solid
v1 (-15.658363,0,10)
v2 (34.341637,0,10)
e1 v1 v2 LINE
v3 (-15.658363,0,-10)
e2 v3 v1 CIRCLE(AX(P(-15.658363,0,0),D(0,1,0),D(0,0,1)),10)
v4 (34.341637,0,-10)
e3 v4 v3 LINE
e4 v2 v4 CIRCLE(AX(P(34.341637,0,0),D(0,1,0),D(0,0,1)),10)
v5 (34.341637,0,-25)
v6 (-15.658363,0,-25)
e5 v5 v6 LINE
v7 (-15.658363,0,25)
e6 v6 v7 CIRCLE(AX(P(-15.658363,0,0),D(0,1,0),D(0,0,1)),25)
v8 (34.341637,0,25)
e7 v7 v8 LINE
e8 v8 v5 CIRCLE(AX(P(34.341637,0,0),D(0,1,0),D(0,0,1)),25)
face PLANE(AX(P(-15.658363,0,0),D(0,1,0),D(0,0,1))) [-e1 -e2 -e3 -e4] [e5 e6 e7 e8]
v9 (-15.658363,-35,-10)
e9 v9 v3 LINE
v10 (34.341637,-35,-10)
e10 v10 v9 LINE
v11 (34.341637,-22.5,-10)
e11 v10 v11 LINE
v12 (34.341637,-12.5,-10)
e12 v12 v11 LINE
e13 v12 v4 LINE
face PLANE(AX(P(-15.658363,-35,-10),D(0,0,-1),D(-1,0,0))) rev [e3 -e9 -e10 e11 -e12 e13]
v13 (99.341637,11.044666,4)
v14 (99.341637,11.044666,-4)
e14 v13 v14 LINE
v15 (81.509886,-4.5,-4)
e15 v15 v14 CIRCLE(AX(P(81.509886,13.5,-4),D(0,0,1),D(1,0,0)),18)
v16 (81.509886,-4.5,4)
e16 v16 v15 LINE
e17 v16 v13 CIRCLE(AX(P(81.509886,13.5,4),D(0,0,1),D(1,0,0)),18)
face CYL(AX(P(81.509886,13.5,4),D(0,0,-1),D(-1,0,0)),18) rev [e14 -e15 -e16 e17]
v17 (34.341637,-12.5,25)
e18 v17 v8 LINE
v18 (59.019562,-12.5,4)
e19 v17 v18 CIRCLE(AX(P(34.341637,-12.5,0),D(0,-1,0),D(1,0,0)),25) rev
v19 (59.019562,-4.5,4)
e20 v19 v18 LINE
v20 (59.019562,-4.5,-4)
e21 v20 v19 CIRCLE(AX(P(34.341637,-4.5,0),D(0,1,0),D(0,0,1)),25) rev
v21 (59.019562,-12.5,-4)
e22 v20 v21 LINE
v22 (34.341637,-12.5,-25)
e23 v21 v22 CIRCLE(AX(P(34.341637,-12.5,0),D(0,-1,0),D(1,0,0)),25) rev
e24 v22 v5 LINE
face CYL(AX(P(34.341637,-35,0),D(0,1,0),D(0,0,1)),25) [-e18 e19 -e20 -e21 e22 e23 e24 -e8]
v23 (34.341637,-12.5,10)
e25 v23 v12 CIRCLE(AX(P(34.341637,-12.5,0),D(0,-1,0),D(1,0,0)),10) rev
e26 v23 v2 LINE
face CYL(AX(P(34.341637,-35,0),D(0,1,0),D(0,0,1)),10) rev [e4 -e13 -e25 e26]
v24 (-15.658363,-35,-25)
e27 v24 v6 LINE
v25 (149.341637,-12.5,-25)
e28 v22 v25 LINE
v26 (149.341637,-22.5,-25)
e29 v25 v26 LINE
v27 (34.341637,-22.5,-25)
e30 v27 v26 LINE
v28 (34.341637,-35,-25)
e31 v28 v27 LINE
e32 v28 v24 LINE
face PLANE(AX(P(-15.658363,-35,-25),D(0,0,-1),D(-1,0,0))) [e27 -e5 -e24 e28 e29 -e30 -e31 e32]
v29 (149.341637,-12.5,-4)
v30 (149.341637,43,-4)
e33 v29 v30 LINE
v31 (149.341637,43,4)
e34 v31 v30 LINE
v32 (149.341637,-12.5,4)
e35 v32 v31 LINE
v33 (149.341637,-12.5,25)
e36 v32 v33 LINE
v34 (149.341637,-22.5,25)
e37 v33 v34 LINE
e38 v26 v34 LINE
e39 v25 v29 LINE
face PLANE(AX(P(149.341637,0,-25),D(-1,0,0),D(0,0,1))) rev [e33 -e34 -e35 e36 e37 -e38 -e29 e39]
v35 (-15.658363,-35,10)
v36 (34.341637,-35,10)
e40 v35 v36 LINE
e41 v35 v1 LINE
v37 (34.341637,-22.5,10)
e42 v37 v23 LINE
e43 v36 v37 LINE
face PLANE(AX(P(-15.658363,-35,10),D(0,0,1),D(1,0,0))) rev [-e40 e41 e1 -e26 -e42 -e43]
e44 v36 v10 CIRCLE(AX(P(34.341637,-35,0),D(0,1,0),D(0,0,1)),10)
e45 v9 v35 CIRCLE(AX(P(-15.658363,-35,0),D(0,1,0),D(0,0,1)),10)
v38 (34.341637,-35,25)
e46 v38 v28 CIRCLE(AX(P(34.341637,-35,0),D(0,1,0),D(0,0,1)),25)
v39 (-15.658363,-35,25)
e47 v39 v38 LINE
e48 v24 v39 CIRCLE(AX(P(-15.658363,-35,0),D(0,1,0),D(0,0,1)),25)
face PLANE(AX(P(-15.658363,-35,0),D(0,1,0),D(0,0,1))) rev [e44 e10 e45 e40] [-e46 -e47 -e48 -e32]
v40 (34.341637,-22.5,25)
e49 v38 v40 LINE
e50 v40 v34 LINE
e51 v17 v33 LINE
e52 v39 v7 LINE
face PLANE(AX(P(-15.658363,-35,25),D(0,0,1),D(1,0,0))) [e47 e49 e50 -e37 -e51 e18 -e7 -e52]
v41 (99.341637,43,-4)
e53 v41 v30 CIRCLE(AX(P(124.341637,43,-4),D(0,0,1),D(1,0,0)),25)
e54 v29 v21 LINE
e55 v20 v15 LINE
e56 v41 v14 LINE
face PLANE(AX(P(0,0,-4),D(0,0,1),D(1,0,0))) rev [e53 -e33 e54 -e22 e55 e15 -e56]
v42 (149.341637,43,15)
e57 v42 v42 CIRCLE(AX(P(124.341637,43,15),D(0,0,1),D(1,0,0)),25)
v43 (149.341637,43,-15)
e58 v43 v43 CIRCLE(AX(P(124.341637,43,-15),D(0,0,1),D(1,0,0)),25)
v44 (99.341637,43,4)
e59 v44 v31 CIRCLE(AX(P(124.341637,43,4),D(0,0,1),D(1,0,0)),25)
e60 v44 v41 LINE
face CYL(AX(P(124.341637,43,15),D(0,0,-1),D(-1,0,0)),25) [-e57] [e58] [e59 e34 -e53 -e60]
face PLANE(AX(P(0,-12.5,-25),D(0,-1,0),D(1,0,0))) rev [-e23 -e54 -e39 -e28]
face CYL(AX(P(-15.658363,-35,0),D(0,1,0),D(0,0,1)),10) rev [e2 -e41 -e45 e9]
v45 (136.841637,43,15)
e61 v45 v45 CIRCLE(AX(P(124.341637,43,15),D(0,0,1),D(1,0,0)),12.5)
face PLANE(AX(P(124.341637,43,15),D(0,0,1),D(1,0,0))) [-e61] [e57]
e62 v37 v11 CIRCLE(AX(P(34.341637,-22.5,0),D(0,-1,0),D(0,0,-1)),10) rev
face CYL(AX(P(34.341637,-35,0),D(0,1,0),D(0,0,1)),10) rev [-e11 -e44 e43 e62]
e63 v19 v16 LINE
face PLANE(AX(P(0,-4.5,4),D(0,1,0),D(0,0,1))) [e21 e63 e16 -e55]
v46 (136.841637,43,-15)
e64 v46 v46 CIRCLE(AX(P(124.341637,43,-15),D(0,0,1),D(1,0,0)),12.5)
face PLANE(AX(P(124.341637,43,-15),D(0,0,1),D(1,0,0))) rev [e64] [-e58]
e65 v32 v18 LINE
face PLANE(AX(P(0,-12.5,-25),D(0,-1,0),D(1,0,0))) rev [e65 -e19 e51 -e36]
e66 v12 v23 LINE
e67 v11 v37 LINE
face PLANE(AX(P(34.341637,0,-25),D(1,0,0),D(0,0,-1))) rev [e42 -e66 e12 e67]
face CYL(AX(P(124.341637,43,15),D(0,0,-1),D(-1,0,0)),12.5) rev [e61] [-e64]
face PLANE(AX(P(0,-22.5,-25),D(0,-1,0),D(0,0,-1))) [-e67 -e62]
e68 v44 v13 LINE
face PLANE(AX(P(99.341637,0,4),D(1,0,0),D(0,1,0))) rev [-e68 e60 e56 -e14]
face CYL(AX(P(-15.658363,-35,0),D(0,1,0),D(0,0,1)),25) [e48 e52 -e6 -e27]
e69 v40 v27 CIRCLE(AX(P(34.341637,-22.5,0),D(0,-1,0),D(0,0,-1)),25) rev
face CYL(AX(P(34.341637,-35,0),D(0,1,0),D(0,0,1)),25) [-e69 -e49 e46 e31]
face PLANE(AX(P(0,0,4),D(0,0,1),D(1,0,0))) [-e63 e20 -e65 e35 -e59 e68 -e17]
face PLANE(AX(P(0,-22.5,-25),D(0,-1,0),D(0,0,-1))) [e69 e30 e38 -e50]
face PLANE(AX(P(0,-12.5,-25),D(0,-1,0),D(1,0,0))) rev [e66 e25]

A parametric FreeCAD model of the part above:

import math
import FreeCAD as App
import Part
import Sketcher


def add_polygon(sketch, points):
    """Adds a closed chain of lines whose ends are joined by coincident constraints."""
    first, n = sketch.GeometryCount, len(points)
    for a, b in zip(points, points[1:] + points[:1]):
        sketch.addGeometry(Part.LineSegment(App.Vector(*a, 0), App.Vector(*b, 0)), False)
    for i in range(n):
        sketch.addConstraint(Sketcher.Constraint("Coincident", first + i, 2, first + (i + 1) % n, 1))

doc = App.newDocument("Part")
body = doc.addObject("PartDesign::Body", "Body")

# Sketch on XZ plane
sketch1 = doc.addObject("Sketcher::SketchObject", "Sketch")
body.addObject(sketch1)
sketch1.AttachmentSupport = (doc.XZ_Plane, [""])
sketch1.MapMode = "FlatFace"
sketch1.addGeometry([
    Part.LineSegment(App.Vector(34, -25, 0), App.Vector(-16, -25, 0)),  # 0
    Part.ArcOfCircle(Part.Circle(App.Vector(-16, 0, 0), App.Vector(0, 0, 1), 25), math.radians(90), math.radians(270)),  # 1
    Part.LineSegment(App.Vector(-16, 25, 0), App.Vector(34, 25, 0)),  # 2
    Part.ArcOfCircle(Part.Circle(App.Vector(34, 0, 0), App.Vector(0, 0, 1), 25), math.radians(-90), math.radians(90)),  # 3
    Part.LineSegment(App.Vector(-16, -10, 0), App.Vector(34, -10, 0)),  # 4
    Part.ArcOfCircle(Part.Circle(App.Vector(34, 0, 0), App.Vector(0, 0, 1), 10), math.radians(-90), math.radians(90)),  # 5
    Part.LineSegment(App.Vector(34, 10, 0), App.Vector(-16, 10, 0)),  # 6
    Part.ArcOfCircle(Part.Circle(App.Vector(-16, 0, 0), App.Vector(0, 0, 1), 10), math.radians(90), math.radians(270)),  # 7
], False)
sketch1.addConstraint([
    Sketcher.Constraint("Tangent", 0, 2, 1, 2),
    Sketcher.Constraint("Tangent", 1, 1, 2, 1),
    Sketcher.Constraint("Tangent", 2, 2, 3, 2),
    Sketcher.Constraint("Tangent", 3, 1, 0, 1),
    Sketcher.Constraint("Tangent", 4, 2, 5, 1),
    Sketcher.Constraint("Tangent", 5, 2, 6, 1),
    Sketcher.Constraint("Tangent", 6, 2, 7, 1),
    Sketcher.Constraint("Tangent", 7, 2, 4, 1),
    Sketcher.Constraint("Horizontal", 0),
    Sketcher.Constraint("Horizontal", 2),
    Sketcher.Constraint("Horizontal", 4),
    Sketcher.Constraint("Horizontal", 6),
    Sketcher.Constraint("Coincident", 5, 3, 3, 3),
    Sketcher.Constraint("PointOnObject", 1, 3, -1),
    Sketcher.Constraint("Vertical", 7, 3, 0, 2),
    Sketcher.Constraint("Radius", 1, 25.0),
    Sketcher.Constraint("Radius", 5, 10.0),
    Sketcher.Constraint("DistanceX", 0, 2, 0, 1, 50.0),
    Sketcher.Constraint("DistanceX", 1, 3, -1, 1, 15.658363),
])
pad1 = doc.addObject("PartDesign::Pad", "Pad")
body.addObject(pad1)
pad1.Profile = sketch1
pad1.Length = 35

# Sketch on XY plane
sketch2 = doc.addObject("Sketcher::SketchObject", "Sketch001")
body.addObject(sketch2)
sketch2.AttachmentSupport = (doc.XY_Plane, [""])
sketch2.MapMode = "FlatFace"
sketch2.AttachmentOffset = App.Placement(App.Vector(0, 0, 25), App.Rotation())
add_polygon(sketch2, [(34, -12), (34, -22), (149, -22), (149, -12)])  # lines 0-3
sketch2.addConstraint([
    Sketcher.Constraint("Vertical", 0),
    Sketcher.Constraint("Horizontal", 1),
    Sketcher.Constraint("Vertical", 2),
    Sketcher.Constraint("Horizontal", 3),
    Sketcher.Constraint("DistanceX", 1, 1, 1, 2, 115.0),
    Sketcher.Constraint("DistanceY", 0, 2, 0, 1, 10.0),
    Sketcher.Constraint("DistanceY", 0, 2, -1, 1, 22.5),
    Sketcher.Constraint("DistanceX", -1, 1, 0, 2, 34.341637),
])
pad2 = doc.addObject("PartDesign::Pad", "Pad001")
body.addObject(pad2)
pad2.Profile = sketch2
pad2.Length = 50
pad2.Reversed = True

# Sketch on XY plane
sketch3 = doc.addObject("Sketcher::SketchObject", "Sketch002")
body.addObject(sketch3)
sketch3.AttachmentSupport = (doc.XY_Plane, [""])
sketch3.MapMode = "FlatFace"
sketch3.addGeometry([
    Part.LineSegment(App.Vector(59, -12, 0), App.Vector(149, -12, 0)),  # 0
    Part.LineSegment(App.Vector(149, -12, 0), App.Vector(149, 43, 0)),  # 1
    Part.ArcOfCircle(Part.Circle(App.Vector(124, 43, 0), App.Vector(0, 0, 1), 25), math.radians(180), math.radians(360)),  # 2
    Part.LineSegment(App.Vector(99, 43, 0), App.Vector(99, 11, 0)),  # 3
    Part.ArcOfCircle(Part.Circle(App.Vector(82, 14, 0), App.Vector(0, 0, 1), 18), math.radians(-90), math.radians(-8)),  # 4
    Part.LineSegment(App.Vector(82, -4, 0), App.Vector(59, -4, 0)),  # 5
    Part.LineSegment(App.Vector(59, -4, 0), App.Vector(59, -12, 0)),  # 6
], False)
sketch3.addConstraint([
    Sketcher.Constraint("Coincident", 0, 2, 1, 1),
    Sketcher.Constraint("Tangent", 1, 2, 2, 2),
    Sketcher.Constraint("Tangent", 2, 1, 3, 1),
    Sketcher.Constraint("Coincident", 3, 2, 4, 2),
    Sketcher.Constraint("Tangent", 4, 1, 5, 1),
    Sketcher.Constraint("Coincident", 5, 2, 6, 1),
    Sketcher.Constraint("Coincident", 6, 2, 0, 1),
    Sketcher.Constraint("Horizontal", 0),
    Sketcher.Constraint("Vertical", 1),
    Sketcher.Constraint("Vertical", 3),
    Sketcher.Constraint("Horizontal", 5),
    Sketcher.Constraint("Vertical", 6),
    Sketcher.Constraint("Radius", 2, 25.0),
    Sketcher.Constraint("Radius", 4, 18.0),
    Sketcher.Constraint("DistanceY", 6, 2, 6, 1, 8.0),
    Sketcher.Constraint("DistanceY", 1, 1, 1, 2, 55.5),
    Sketcher.Constraint("DistanceY", -1, 1, 2, 3, 43.0),
    Sketcher.Constraint("DistanceX", 0, 1, 0, 2, 90.816781),
    Sketcher.Constraint("DistanceX", 5, 2, 5, 1, 22.98503),
    Sketcher.Constraint("DistanceX", -1, 1, 2, 3, 124.341637),
])
pad3 = doc.addObject("PartDesign::Pad", "Pad002")
body.addObject(pad3)
pad3.Profile = sketch3
pad3.Length = 8
pad3.Midplane = True

# Sketch on XY plane
sketch4 = doc.addObject("Sketcher::SketchObject", "Sketch003")
body.addObject(sketch4)
sketch4.AttachmentSupport = (doc.XY_Plane, [""])
sketch4.MapMode = "FlatFace"
sketch4.addGeometry([
    Part.Circle(App.Vector(124, 43, 0), App.Vector(0, 0, 1), 25),
    Part.Circle(App.Vector(124, 43, 0), App.Vector(0, 0, 1), 12),
], False)
sketch4.addConstraint([
    Sketcher.Constraint("Coincident", 1, 3, 0, 3),
    Sketcher.Constraint("Diameter", 0, 50.0),
    Sketcher.Constraint("Diameter", 1, 25.0),
    Sketcher.Constraint("DistanceY", -1, 1, 0, 3, 43.0),
    Sketcher.Constraint("DistanceX", -1, 1, 0, 3, 124.341637),
])
pad4 = doc.addObject("PartDesign::Pad", "Pad003")
body.addObject(pad4)
pad4.Profile = sketch4
pad4.Length = 30
pad4.Midplane = True

doc.recompute()
